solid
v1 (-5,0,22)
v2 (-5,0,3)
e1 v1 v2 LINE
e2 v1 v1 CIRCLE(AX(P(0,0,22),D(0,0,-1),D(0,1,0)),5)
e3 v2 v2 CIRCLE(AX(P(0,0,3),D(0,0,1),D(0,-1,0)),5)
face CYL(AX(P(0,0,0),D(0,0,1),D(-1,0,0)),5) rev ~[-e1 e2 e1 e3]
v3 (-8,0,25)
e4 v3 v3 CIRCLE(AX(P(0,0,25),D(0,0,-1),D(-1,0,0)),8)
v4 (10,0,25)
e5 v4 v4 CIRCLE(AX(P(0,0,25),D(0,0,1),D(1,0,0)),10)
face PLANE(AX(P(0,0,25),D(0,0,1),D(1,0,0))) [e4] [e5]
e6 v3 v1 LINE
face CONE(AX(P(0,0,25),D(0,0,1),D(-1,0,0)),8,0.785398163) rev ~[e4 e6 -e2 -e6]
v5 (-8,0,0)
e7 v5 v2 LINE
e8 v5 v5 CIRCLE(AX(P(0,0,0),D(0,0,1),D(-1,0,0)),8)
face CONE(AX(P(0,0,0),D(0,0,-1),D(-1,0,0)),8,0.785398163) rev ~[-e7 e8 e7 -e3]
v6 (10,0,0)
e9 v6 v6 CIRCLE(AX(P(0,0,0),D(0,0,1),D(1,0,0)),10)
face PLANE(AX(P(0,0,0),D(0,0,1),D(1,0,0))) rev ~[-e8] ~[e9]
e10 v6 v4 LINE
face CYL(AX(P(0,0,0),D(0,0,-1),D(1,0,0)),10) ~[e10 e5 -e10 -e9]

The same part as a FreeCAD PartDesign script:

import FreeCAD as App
import Part
import Sketcher
from FreeCAD import Vector
Q = App.Units.Quantity

doc = App.newDocument("Part")
body = doc.addObject("PartDesign::Body", "Body")

sketch1 = body.newObject("Sketcher::SketchObject", "Sketch")
sketch1.AttachmentSupport = (doc.getObject("XY_Plane"), [""])
sketch1.MapMode = "FlatFace"
sketch1.addGeometry(Part.Circle(Vector(0, 0, 0), Vector(0, 0, 1), 10), False)
sketch1.addConstraint(Sketcher.Constraint("Coincident", 0, 3, -1, 1))
sketch1.addConstraint(Sketcher.Constraint("Diameter", 0, Q("20 mm")))
pad1 = body.newObject("PartDesign::Pad", "Pad")
pad1.Profile = sketch1
pad1.Length = 25

sketch2 = body.newObject("Sketcher::SketchObject", "Sketch001")
sketch2.AttachmentSupport = (doc.getObject("XY_Plane"), [""])
sketch2.MapMode = "FlatFace"
sketch2.AttachmentOffset = App.Placement(Vector(0, 0, 25), App.Rotation())
sketch2.addGeometry(Part.Circle(Vector(0, 0, 0), Vector(0, 0, 1), 5), False)
sketch2.addConstraint(Sketcher.Constraint("Coincident", 0, 3, -1, 1))
sketch2.addConstraint(Sketcher.Constraint("Diameter", 0, Q("10 mm")))
doc.recompute()
hole = body.newObject("PartDesign::Hole", "Hole")
hole.Profile = sketch2
hole.ThreadType = "None"
hole.Diameter = 10
hole.DepthType = "Dimension"
hole.Depth = 15
hole.DrillPoint = "Flat"
hole.HoleCutType = "Countersink"
hole.HoleCutDiameter = 16
hole.HoleCutCountersinkAngle = 90

sketch3 = body.newObject("Sketcher::SketchObject", "Sketch002")
sketch3.AttachmentSupport = (doc.getObject("XY_Plane"), [""])
sketch3.MapMode = "FlatFace"
sketch3.addGeometry(Part.Circle(Vector(0, 0, 0), Vector(0, 0, 1), 5), False)
sketch3.addConstraint(Sketcher.Constraint("Coincident", 0, 3, -1, 1))
sketch3.addConstraint(Sketcher.Constraint("Diameter", 0, Q("10 mm")))
doc.recompute()
hole2 = body.newObject("PartDesign::Hole", "Hole001")
hole2.Profile = sketch3
hole2.ThreadType = "None"
hole2.Diameter = 10
hole2.DepthType = "Dimension"
hole2.Depth = 15
hole2.DrillPoint = "Flat"
hole2.HoleCutType = "Countersink"
hole2.HoleCutDiameter = 16
hole2.HoleCutCountersinkAngle = 90
hole2.Reversed = True

doc.recompute()
